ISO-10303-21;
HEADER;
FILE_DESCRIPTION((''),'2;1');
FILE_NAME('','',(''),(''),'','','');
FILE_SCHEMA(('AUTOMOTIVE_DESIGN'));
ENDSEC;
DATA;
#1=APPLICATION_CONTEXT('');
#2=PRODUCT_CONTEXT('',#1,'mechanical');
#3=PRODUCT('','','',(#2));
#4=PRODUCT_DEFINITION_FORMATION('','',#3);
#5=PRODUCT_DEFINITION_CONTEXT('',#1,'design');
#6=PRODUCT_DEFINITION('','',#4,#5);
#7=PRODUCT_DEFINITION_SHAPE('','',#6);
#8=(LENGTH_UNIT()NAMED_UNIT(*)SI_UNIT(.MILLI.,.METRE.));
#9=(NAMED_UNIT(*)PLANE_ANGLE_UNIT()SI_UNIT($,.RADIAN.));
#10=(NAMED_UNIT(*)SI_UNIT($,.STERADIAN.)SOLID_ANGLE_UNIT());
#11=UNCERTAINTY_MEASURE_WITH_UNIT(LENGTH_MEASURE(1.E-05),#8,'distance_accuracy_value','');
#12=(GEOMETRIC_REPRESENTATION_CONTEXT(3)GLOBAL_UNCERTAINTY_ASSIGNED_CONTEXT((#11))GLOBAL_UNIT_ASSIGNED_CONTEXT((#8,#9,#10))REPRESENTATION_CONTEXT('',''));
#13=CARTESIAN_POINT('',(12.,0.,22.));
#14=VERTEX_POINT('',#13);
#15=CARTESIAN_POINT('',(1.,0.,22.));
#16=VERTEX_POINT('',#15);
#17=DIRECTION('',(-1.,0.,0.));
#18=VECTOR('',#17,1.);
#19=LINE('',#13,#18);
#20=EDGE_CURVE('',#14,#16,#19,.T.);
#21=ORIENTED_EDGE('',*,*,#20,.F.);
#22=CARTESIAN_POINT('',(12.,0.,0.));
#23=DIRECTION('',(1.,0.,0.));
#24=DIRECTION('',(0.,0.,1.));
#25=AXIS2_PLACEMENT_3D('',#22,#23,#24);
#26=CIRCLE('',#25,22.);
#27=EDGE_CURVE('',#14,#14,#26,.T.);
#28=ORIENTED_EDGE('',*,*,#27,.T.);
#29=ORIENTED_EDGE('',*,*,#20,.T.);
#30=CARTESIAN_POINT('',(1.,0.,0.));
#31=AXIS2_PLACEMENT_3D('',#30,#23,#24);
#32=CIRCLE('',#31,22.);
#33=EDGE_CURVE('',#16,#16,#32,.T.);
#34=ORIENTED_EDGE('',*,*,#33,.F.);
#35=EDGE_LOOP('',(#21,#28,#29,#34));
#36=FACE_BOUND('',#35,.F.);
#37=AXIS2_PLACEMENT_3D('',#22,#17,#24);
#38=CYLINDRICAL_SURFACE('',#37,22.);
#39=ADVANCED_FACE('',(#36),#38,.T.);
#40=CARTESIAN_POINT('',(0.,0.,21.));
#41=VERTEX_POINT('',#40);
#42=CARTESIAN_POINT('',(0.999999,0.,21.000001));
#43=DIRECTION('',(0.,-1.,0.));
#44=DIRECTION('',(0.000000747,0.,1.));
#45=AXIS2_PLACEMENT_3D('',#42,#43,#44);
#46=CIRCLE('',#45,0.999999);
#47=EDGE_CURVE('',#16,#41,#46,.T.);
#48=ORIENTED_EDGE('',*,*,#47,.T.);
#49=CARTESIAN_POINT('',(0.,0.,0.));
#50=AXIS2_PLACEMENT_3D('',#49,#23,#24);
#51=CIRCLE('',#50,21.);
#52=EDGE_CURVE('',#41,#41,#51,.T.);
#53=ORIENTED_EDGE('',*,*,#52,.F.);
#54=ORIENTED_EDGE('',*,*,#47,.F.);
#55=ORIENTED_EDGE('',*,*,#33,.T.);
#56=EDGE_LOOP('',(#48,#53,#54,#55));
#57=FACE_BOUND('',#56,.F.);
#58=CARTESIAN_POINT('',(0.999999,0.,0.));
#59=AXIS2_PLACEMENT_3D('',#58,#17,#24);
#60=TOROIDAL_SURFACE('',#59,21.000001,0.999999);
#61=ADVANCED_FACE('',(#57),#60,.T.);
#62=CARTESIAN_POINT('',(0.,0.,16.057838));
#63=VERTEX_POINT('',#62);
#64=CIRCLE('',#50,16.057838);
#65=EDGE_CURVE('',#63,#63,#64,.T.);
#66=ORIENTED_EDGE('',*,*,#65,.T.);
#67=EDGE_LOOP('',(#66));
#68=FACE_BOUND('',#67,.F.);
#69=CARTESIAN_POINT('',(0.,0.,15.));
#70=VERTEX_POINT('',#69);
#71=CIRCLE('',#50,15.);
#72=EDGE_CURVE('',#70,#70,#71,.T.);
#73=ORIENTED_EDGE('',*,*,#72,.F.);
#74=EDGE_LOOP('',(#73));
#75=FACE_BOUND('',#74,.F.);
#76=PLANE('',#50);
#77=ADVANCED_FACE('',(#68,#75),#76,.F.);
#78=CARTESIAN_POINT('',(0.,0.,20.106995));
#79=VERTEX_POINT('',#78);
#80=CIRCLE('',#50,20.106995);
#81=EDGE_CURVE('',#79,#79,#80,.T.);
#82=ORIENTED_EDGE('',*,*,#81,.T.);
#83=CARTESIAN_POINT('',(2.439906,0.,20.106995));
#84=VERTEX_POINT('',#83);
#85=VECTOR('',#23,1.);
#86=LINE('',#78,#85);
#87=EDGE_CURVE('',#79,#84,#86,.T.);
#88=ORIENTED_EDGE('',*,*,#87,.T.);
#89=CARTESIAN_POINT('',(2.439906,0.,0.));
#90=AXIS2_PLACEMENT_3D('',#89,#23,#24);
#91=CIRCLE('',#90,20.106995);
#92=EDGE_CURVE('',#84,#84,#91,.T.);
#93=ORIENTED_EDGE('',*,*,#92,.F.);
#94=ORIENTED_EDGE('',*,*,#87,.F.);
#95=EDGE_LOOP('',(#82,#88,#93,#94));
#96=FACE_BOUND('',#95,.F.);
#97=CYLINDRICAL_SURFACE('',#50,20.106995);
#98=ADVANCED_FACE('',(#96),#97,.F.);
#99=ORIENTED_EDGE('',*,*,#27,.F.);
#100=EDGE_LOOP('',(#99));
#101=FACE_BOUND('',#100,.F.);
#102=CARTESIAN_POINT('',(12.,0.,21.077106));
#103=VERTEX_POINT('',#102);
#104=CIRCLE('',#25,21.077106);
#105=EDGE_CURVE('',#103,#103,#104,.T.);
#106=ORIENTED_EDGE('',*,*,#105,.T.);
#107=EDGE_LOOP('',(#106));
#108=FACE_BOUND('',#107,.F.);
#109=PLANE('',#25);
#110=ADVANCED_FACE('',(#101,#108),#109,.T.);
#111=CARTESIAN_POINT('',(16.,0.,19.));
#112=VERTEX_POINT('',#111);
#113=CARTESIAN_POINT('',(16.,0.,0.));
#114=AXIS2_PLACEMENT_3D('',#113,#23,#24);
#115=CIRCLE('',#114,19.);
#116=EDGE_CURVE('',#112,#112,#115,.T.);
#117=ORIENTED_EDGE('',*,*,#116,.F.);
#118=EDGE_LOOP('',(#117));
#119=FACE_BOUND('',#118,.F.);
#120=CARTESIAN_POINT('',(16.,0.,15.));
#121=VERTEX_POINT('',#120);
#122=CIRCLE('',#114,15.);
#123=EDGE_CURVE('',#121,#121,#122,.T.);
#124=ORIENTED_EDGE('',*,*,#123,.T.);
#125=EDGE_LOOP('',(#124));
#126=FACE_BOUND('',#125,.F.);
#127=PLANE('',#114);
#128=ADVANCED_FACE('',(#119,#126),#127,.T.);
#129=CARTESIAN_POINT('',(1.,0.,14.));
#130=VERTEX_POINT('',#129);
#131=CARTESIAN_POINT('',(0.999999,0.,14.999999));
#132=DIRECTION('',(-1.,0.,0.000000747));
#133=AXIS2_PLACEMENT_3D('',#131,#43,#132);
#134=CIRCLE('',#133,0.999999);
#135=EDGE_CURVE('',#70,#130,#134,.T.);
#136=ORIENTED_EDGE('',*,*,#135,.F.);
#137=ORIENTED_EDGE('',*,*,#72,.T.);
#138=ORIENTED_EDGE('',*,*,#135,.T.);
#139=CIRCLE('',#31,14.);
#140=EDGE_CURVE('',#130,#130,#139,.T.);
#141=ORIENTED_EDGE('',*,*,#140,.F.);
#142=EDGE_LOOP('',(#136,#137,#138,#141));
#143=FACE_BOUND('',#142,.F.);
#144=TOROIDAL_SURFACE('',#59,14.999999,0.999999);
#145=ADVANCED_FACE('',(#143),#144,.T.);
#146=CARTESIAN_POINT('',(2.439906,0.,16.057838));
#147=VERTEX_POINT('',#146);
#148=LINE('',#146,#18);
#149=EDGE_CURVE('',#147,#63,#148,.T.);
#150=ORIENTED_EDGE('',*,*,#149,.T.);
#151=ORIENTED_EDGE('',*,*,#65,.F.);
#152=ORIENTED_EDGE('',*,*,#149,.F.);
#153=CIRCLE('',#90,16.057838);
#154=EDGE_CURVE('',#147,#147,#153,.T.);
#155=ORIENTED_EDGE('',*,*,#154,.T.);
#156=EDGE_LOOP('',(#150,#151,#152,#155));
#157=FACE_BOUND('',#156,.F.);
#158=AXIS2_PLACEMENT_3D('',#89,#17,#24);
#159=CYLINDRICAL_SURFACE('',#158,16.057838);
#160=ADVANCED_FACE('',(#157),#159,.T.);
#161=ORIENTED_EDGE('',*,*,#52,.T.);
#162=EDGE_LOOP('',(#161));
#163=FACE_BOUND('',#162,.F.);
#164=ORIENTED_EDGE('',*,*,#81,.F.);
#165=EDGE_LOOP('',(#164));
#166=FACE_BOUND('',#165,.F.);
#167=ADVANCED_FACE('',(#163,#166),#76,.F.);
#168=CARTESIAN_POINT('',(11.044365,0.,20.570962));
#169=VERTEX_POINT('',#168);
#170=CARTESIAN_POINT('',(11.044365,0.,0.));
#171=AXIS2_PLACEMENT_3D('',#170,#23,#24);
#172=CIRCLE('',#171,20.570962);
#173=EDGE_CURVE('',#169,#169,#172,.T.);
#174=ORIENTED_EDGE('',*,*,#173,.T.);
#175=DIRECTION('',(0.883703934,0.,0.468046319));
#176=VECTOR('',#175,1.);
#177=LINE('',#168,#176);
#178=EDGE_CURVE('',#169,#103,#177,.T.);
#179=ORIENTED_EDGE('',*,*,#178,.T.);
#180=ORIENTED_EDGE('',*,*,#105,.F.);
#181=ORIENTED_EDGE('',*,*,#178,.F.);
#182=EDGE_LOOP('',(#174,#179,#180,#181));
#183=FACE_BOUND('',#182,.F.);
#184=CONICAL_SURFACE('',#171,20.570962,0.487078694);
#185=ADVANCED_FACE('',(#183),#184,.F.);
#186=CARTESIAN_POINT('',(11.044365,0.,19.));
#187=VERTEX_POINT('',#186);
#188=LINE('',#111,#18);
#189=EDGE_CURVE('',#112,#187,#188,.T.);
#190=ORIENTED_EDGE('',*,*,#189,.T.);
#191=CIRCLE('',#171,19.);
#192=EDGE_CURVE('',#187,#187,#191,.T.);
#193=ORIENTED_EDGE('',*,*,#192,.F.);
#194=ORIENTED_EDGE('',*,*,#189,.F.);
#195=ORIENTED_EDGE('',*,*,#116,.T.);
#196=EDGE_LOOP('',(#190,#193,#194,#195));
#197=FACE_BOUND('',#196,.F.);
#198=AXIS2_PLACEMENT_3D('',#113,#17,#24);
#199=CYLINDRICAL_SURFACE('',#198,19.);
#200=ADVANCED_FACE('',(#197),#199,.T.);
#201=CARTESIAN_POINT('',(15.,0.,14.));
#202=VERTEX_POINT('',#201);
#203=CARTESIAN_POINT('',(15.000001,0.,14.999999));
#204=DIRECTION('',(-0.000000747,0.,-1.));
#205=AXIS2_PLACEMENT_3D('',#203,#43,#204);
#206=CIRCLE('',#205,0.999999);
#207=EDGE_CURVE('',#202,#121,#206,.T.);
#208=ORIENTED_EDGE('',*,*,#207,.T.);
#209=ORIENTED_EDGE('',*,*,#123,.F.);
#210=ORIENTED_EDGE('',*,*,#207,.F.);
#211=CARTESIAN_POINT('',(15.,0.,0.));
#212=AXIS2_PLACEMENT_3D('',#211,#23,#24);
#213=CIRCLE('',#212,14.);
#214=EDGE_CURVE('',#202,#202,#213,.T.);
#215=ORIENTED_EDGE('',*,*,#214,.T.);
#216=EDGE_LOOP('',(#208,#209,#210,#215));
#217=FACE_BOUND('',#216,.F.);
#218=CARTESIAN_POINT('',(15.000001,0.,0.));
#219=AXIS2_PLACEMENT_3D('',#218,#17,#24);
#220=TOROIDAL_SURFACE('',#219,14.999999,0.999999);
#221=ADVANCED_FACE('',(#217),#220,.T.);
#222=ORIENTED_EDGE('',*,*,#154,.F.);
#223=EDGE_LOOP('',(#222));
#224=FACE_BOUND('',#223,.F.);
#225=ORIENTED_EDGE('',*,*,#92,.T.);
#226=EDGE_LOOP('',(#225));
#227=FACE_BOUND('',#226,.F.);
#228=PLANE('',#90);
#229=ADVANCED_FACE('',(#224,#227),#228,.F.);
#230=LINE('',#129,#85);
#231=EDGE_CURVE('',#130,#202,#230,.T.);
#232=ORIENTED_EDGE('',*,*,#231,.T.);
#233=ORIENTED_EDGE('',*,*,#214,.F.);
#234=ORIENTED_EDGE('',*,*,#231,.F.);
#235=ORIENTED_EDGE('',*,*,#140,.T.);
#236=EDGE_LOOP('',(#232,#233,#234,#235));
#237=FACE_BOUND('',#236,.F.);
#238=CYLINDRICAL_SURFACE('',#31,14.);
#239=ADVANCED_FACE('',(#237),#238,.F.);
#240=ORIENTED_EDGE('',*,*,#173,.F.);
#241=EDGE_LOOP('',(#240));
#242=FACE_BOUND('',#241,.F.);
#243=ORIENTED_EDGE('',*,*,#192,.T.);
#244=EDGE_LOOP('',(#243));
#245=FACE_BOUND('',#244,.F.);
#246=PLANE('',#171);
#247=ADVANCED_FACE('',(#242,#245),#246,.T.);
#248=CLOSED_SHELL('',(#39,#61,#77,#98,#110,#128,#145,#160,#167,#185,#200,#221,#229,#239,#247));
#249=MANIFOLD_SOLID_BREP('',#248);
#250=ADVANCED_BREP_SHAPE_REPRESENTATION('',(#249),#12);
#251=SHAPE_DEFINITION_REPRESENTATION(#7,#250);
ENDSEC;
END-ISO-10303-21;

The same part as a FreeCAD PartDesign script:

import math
import FreeCAD as App
import Part
import Sketcher
from FreeCAD import Vector
Q = App.Units.Quantity

doc = App.newDocument("Part")
params = doc.addObject("Spreadsheet::Sheet", "Params")
for row, (alias, value) in enumerate([
    ("sketch1_radius", "0.999999 mm"),
    ("sketch1_width", "11 mm"),
    ("sketch1_width2", "14 mm"),
    ("sketch1_height", "4 mm"),
    ("revolution_angle", "360 deg"),
], start=1):
    params.set(f"A{row}", alias)
    params.set(f"B{row}", "=" + value)
    params.setAlias(f"B{row}", alias)

body = doc.addObject("PartDesign::Body", "Body")

# Sketch on XZ plane
sketch1 = doc.addObject("Sketcher::SketchObject", "Sketch")
body.addObject(sketch1)
sketch1.AttachmentSupport = (doc.XZ_Plane, [""])
sketch1.MapMode = "FlatFace"
sketch1.addGeometry(Part.LineSegment(Vector(12, 22, 0), Vector(1, 22, 0)), False)
sketch1.addGeometry(Part.ArcOfCircle(Part.Circle(Vector(1, 21, 0), Vector(0, 0, 1), 1), math.radians(90), math.radians(180)), False)
sketch1.addGeometry(Part.LineSegment(Vector(0, 21, 0), Vector(0, 20.1, 0)), False)
sketch1.addGeometry(Part.LineSegment(Vector(0, 20.1, 0), Vector(2.4, 20.1, 0)), False)
sketch1.addGeometry(Part.LineSegment(Vector(2.4, 20.1, 0), Vector(2.4, 16.1, 0)), False)
sketch1.addGeometry(Part.LineSegment(Vector(2.4, 16.1, 0), Vector(0, 16.1, 0)), False)
sketch1.addGeometry(Part.LineSegment(Vector(0, 16.1, 0), Vector(0, 15, 0)), False)
sketch1.addGeometry(Part.ArcOfCircle(Part.Circle(Vector(1, 15, 0), Vector(0, 0, 1), 1), math.radians(180), math.radians(270)), False)
sketch1.addGeometry(Part.LineSegment(Vector(1, 14, 0), Vector(15, 14, 0)), False)
sketch1.addGeometry(Part.ArcOfCircle(Part.Circle(Vector(15, 15, 0), Vector(0, 0, 1), 1), math.radians(-90), math.radians(0)), False)
sketch1.addGeometry(Part.LineSegment(Vector(16, 15, 0), Vector(16, 19, 0)), False)
sketch1.addGeometry(Part.LineSegment(Vector(16, 19, 0), Vector(11, 19, 0)), False)
sketch1.addGeometry(Part.LineSegment(Vector(11, 19, 0), Vector(11, 20.6, 0)), False)
sketch1.addGeometry(Part.LineSegment(Vector(11, 20.6, 0), Vector(12, 21.1, 0)), False)
sketch1.addGeometry(Part.LineSegment(Vector(12, 21.1, 0), Vector(12, 22, 0)), False)
sketch1.addConstraint(Sketcher.Constraint("Tangent", 0, 2, 1, 1))
sketch1.addConstraint(Sketcher.Constraint("Tangent", 1, 2, 2, 1))
sketch1.addConstraint(Sketcher.Constraint("Coincident", 2, 2, 3, 1))
sketch1.addConstraint(Sketcher.Constraint("Coincident", 3, 2, 4, 1))
sketch1.addConstraint(Sketcher.Constraint("Coincident", 4, 2, 5, 1))
sketch1.addConstraint(Sketcher.Constraint("Coincident", 5, 2, 6, 1))
sketch1.addConstraint(Sketcher.Constraint("Tangent", 6, 2, 7, 1))
sketch1.addConstraint(Sketcher.Constraint("Tangent", 7, 2, 8, 1))
sketch1.addConstraint(Sketcher.Constraint("Tangent", 8, 2, 9, 1))
sketch1.addConstraint(Sketcher.Constraint("Tangent", 9, 2, 10, 1))
sketch1.addConstraint(Sketcher.Constraint("Coincident", 10, 2, 11, 1))
sketch1.addConstraint(Sketcher.Constraint("Coincident", 11, 2, 12, 1))
sketch1.addConstraint(Sketcher.Constraint("Coincident", 12, 2, 13, 1))
sketch1.addConstraint(Sketcher.Constraint("Coincident", 13, 2, 14, 1))
sketch1.addConstraint(Sketcher.Constraint("Coincident", 14, 2, 0, 1))
sketch1.addConstraint(Sketcher.Constraint("Horizontal", 0))
sketch1.addConstraint(Sketcher.Constraint("Vertical", 2))
sketch1.addConstraint(Sketcher.Constraint("Horizontal", 3))
sketch1.addConstraint(Sketcher.Constraint("Vertical", 4))
sketch1.addConstraint(Sketcher.Constraint("Horizontal", 5))
sketch1.addConstraint(Sketcher.Constraint("Vertical", 6))
sketch1.addConstraint(Sketcher.Constraint("Horizontal", 8))
sketch1.addConstraint(Sketcher.Constraint("Vertical", 10))
sketch1.addConstraint(Sketcher.Constraint("Horizontal", 11))
sketch1.addConstraint(Sketcher.Constraint("Vertical", 12))
sketch1.addConstraint(Sketcher.Constraint("Vertical", 14))
sketch1.addConstraint(Sketcher.Constraint("Equal", 1, 7))
sketch1.addConstraint(Sketcher.Constraint("Equal", 7, 9))
sketch1.addConstraint(Sketcher.Constraint("PointOnObject", 1, 2, -2))
sketch1.addConstraint(Sketcher.Constraint("PointOnObject", 5, 2, -2))
sketch1.addConstraint(Sketcher.Constraint("Radius", 1, Q("0.999999 mm")))
sketch1.addConstraint(Sketcher.Constraint("DistanceX", 0, 2, 0, 1, Q("11 mm")))
sketch1.addConstraint(Sketcher.Constraint("DistanceX", 8, 1, 8, 2, Q("14 mm")))
sketch1.addConstraint(Sketcher.Constraint("DistanceY", 10, 1, 10, 2, Q("4 mm")))
sketch1.addConstraint(Sketcher.Constraint("DistanceY", -1, 1, 1, 3, Q("21.000001 mm")))
sketch1.addConstraint(Sketcher.Constraint("DistanceY", -1, 1, 7, 3, Q("14.999999 mm")))
sketch1.addConstraint(Sketcher.Constraint("DistanceY", 6, 2, 6, 1, Q("1.057838 mm")))
sketch1.addConstraint(Sketcher.Constraint("DistanceX", 3, 1, 3, 2, Q("2.439906 mm")))
sketch1.addConstraint(Sketcher.Constraint("DistanceX", 11, 2, 11, 1, Q("4.955635 mm")))
sketch1.addConstraint(Sketcher.Constraint("DistanceY", 2, 2, 2, 1, Q("0.893005 mm")))
sketch1.addConstraint(Sketcher.Constraint("DistanceY", 12, 1, 12, 2, Q("1.570962 mm")))
sketch1.addConstraint(Sketcher.Constraint("DistanceY", 14, 1, 14, 2, Q("0.922894 mm")))
sketch1.setExpression("Constraints[30]", "Params.sketch1_radius")
sketch1.setExpression("Constraints[31]", "Params.sketch1_width")
sketch1.setExpression("Constraints[32]", "Params.sketch1_width2")
sketch1.setExpression("Constraints[33]", "Params.sketch1_height")
revolution = doc.addObject("PartDesign::Revolution", "Revolution")
body.addObject(revolution)
revolution.Profile = sketch1
revolution.ReferenceAxis = (sketch1, ["H_Axis"])
revolution.setExpression("Angle", "Params.revolution_angle")

doc.recompute()
